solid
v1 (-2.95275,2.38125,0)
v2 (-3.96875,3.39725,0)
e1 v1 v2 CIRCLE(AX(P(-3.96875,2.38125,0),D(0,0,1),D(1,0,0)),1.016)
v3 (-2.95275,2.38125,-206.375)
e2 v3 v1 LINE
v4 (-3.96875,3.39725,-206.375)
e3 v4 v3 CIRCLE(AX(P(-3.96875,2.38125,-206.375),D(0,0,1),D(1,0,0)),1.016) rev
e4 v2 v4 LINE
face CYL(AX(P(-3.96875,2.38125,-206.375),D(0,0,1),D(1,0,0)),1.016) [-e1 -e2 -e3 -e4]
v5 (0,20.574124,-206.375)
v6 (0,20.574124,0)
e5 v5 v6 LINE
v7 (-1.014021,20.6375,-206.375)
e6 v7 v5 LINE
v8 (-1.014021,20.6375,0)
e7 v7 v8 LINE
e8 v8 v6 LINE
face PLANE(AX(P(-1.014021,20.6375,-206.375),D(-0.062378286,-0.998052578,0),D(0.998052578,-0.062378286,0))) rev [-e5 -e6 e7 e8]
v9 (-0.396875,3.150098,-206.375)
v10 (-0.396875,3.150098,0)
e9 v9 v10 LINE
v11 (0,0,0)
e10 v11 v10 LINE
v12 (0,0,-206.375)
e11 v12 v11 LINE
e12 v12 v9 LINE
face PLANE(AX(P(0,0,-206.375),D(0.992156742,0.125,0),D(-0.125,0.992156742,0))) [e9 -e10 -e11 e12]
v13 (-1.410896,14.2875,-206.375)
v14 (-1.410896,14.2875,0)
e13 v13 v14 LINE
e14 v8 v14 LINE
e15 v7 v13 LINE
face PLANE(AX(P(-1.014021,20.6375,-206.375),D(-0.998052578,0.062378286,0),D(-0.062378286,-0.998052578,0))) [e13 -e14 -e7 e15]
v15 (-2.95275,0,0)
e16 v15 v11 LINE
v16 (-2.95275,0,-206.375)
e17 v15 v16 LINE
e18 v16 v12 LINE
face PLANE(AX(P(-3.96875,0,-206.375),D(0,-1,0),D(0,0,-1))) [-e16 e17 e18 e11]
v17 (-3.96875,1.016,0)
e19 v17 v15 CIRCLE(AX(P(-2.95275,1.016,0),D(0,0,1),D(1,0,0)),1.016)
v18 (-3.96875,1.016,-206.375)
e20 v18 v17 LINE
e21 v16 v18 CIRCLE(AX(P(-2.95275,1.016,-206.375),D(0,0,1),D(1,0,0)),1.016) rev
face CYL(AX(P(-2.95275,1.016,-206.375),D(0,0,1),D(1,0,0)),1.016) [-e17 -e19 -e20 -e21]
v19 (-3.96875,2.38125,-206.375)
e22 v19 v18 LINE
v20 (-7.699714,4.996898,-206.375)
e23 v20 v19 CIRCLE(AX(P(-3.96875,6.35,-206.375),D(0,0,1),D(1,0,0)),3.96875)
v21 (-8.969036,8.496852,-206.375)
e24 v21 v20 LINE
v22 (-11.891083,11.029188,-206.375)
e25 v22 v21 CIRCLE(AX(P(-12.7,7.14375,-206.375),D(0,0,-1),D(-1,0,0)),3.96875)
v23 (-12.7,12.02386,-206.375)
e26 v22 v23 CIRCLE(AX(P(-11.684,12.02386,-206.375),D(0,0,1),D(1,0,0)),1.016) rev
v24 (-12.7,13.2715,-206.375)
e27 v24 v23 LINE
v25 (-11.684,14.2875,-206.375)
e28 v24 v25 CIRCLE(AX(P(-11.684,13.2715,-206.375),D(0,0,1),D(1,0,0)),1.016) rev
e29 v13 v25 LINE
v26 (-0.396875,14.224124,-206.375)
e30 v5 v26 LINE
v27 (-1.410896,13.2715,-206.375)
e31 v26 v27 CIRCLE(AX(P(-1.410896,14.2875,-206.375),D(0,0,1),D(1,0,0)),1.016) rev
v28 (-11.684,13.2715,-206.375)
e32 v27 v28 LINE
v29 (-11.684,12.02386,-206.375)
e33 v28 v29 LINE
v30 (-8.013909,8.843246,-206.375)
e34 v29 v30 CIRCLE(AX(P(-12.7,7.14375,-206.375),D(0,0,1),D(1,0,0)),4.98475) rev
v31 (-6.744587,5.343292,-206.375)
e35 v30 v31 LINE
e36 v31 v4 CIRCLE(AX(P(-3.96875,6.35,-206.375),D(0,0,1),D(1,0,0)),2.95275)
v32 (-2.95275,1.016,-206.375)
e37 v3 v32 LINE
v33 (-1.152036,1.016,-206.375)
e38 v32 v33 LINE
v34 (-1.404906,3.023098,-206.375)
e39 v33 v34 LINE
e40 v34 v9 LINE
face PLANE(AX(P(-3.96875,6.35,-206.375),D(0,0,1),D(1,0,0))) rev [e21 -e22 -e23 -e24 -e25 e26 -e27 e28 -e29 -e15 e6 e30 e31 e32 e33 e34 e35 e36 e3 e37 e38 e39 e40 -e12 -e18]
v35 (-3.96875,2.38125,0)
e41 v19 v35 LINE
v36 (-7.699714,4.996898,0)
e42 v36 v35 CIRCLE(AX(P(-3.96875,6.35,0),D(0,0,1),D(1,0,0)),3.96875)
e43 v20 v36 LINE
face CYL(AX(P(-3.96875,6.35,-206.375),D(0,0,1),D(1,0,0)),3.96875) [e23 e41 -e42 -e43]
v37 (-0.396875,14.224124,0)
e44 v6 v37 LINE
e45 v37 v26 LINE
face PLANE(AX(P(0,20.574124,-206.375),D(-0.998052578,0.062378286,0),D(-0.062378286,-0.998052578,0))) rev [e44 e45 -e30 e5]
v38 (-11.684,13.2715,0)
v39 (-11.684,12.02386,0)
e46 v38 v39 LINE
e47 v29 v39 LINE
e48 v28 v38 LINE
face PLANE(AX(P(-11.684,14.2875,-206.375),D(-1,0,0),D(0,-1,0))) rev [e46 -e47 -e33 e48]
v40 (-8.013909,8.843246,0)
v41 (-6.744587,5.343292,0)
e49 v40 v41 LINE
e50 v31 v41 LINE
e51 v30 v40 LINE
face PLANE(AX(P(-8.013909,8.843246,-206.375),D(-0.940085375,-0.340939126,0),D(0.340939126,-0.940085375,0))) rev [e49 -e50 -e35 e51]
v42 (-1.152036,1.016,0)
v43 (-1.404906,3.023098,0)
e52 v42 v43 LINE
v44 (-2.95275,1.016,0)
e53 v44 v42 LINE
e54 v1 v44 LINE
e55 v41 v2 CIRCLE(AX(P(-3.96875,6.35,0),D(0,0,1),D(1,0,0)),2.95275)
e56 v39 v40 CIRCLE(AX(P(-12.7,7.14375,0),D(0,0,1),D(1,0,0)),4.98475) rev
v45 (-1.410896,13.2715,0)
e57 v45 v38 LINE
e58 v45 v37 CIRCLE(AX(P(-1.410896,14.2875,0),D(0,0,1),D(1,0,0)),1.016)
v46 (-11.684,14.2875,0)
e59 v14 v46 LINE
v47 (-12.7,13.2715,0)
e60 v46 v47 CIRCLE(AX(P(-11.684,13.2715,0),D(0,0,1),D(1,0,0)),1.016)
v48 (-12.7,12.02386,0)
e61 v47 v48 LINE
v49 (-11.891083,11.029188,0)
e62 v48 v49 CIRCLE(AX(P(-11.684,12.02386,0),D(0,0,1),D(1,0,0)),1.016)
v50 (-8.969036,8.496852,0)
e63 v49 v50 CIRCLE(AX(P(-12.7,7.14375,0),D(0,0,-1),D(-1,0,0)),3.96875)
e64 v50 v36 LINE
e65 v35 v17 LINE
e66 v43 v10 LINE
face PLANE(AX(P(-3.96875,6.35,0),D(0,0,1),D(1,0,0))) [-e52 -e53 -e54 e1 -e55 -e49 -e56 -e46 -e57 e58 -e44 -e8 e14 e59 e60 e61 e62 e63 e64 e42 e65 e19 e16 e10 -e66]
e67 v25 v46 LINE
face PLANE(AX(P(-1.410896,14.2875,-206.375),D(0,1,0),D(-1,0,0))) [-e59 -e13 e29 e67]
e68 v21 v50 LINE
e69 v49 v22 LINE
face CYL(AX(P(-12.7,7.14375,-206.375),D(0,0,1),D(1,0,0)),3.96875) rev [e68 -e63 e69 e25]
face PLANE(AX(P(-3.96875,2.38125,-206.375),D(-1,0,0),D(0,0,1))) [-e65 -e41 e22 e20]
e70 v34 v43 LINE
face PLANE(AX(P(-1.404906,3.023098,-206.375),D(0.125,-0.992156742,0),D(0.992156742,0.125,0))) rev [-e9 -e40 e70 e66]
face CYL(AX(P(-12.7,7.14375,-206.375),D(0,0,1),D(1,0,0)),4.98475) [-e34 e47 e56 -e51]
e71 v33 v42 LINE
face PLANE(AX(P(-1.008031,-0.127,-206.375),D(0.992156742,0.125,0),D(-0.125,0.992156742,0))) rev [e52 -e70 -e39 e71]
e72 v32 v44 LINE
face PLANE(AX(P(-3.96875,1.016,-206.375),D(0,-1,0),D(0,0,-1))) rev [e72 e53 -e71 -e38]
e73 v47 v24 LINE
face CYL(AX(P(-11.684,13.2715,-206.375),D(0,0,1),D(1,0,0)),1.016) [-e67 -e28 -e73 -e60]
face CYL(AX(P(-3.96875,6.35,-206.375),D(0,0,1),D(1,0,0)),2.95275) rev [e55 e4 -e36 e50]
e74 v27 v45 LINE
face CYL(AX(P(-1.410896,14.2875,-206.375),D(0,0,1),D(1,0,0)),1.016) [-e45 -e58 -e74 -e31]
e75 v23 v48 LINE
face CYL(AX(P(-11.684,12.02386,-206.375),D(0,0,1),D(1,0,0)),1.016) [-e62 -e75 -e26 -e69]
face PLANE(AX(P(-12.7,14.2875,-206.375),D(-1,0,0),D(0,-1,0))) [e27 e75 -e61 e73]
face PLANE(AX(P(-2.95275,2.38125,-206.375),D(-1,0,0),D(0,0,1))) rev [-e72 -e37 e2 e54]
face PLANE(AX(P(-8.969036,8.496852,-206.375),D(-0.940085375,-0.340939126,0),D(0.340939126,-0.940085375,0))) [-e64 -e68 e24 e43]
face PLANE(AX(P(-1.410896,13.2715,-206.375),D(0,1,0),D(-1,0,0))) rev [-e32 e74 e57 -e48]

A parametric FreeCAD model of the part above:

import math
import FreeCAD as App
import Part
import Sketcher
from FreeCAD import Vector
Q = App.Units.Quantity


def edges_at(feature, points):
    """Names of the edges that pass closest to the given points."""
    edges = feature.Shape.Edges
    near = lambda p: min(range(len(edges)), key=lambda i: edges[i].distToShape(Part.Vertex(*p))[0])
    return sorted({f"Edge{near(p) + 1}" for p in points})

doc = App.newDocument("Part")
body = doc.addObject("PartDesign::Body", "Body")

sketch1 = body.newObject("Sketcher::SketchObject", "Sketch")
sketch1.AttachmentSupport = (doc.getObject("XY_Plane"), [""])
sketch1.MapMode = "FlatFace"
sketch1.addGeometry([
    Part.LineSegment(Vector(-1, 20.6, 0), Vector(-1.4, 14.3, 0)),
    Part.LineSegment(Vector(-1.4, 14.3, 0), Vector(-12.7, 14.3, 0)),
    Part.LineSegment(Vector(-12.7, 14.3, 0), Vector(-12.7, 11.1, 0)),
    Part.ArcOfCircle(Part.Circle(Vector(-12.7, 7.1, 0), Vector(0, 0, 1), 4), math.radians(20), math.radians(90)),
    Part.LineSegment(Vector(-9, 8.5, 0), Vector(-7.7, 5, 0)),
    Part.ArcOfCircle(Part.Circle(Vector(-4, 6.3, 0), Vector(0, 0, 1), 4), math.radians(-160), math.radians(-90)),
    Part.LineSegment(Vector(-4, 2.4, 0), Vector(-4, 0, 0)),
    Part.LineSegment(Vector(-4, 0, 0), Vector(0, 0, 0)),
    Part.LineSegment(Vector(0, 0, 0), Vector(-0.4, 3.2, 0)),
    Part.LineSegment(Vector(-0.4, 3.2, 0), Vector(-1.4, 3, 0)),
    Part.LineSegment(Vector(-1.4, 3, 0), Vector(-1.2, 1, 0)),
    Part.LineSegment(Vector(-1.2, 1, 0), Vector(-3, 1, 0)),
    Part.LineSegment(Vector(-3, 1, 0), Vector(-3, 3.6, 0)),
    Part.ArcOfCircle(Part.Circle(Vector(-4, 6.3, 0), Vector(0, 0, 1), 3), math.radians(-160), math.radians(-70)),
    Part.LineSegment(Vector(-6.7, 5.3, 0), Vector(-8, 8.8, 0)),
    Part.ArcOfCircle(Part.Circle(Vector(-12.7, 7.1, 0), Vector(0, 0, 1), 5), math.radians(20), math.radians(78)),
    Part.LineSegment(Vector(-11.7, 12, 0), Vector(-11.7, 13.3, 0)),
    Part.LineSegment(Vector(-11.7, 13.3, 0), Vector(-0.5, 13.3, 0)),
    Part.LineSegment(Vector(-0.5, 13.3, 0), Vector(0, 20.6, 0)),
    Part.LineSegment(Vector(0, 20.6, 0), Vector(-1, 20.6, 0)),
], False)
sketch1.addConstraint([
    Sketcher.Constraint("Coincident", 0, 2, 1, 1),
    Sketcher.Constraint("Coincident", 1, 2, 2, 1),
    Sketcher.Constraint("Coincident", 2, 2, 3, 2),
    Sketcher.Constraint("Tangent", 3, 1, 4, 1),
    Sketcher.Constraint("Tangent", 4, 2, 5, 1),
    Sketcher.Constraint("Coincident", 5, 2, 6, 1),
    Sketcher.Constraint("Coincident", 6, 2, 7, 1),
    Sketcher.Constraint("Coincident", 7, 2, 8, 1),
    Sketcher.Constraint("Coincident", 8, 2, 9, 1),
    Sketcher.Constraint("Coincident", 9, 2, 10, 1),
    Sketcher.Constraint("Coincident", 10, 2, 11, 1),
    Sketcher.Constraint("Coincident", 11, 2, 12, 1),
    Sketcher.Constraint("Coincident", 12, 2, 13, 2),
    Sketcher.Constraint("Tangent", 13, 1, 14, 1),
    Sketcher.Constraint("Tangent", 14, 2, 15, 1),
    Sketcher.Constraint("Coincident", 15, 2, 16, 1),
    Sketcher.Constraint("Coincident", 16, 2, 17, 1),
    Sketcher.Constraint("Coincident", 17, 2, 18, 1),
    Sketcher.Constraint("Coincident", 18, 2, 19, 1),
    Sketcher.Constraint("Coincident", 19, 2, 0, 1),
    Sketcher.Constraint("Horizontal", 1),
    Sketcher.Constraint("Vertical", 2),
    Sketcher.Constraint("Vertical", 6),
    Sketcher.Constraint("Horizontal", 7),
    Sketcher.Constraint("Horizontal", 11),
    Sketcher.Constraint("Vertical", 12),
    Sketcher.Constraint("Vertical", 16),
    Sketcher.Constraint("Horizontal", 17),
    Sketcher.Constraint("Coincident", 7, 2, -1, 1),
    Sketcher.Constraint("Coincident", 13, 3, 5, 3),
    Sketcher.Constraint("Coincident", 15, 3, 3, 3),
    Sketcher.Constraint("Equal", 3, 5),
    Sketcher.Constraint("PointOnObject", 18, 2, -2),
    Sketcher.Constraint("Perpendicular", 8, 9),
    Sketcher.Constraint("Perpendicular", 9, 10),
    Sketcher.Constraint("Parallel", 4, 14),
    Sketcher.Constraint("Parallel", 0, 18),
    Sketcher.Constraint("Perpendicular", 18, 19),
    Sketcher.Constraint("Vertical", 15, 3, 1, 2),
    Sketcher.Constraint("Vertical", 13, 3, 5, 2),
    Sketcher.Constraint("Equal", 9, 19),
    Sketcher.Constraint("Radius", 3, Q("0.15625 in")),
    Sketcher.Constraint("DistanceX", 3, 3, -1, 1, Q("0.5 in")),
    Sketcher.Constraint("Distance", 9, Q("0.04 in")),
    Sketcher.Constraint("DistanceX", 7, 1, 7, 2, Q("0.15625 in")),
    Sketcher.Constraint("DistanceY", 2, 2, 2, 1, Q("0.125 in")),
    Sketcher.Constraint("DistanceY", 6, 2, 6, 1, Q("0.09375 in")),
    Sketcher.Constraint("DistanceY", -1, 1, 10, 2, Q("0.04 in")),
    Sketcher.Constraint("DistanceX", 15, 2, -1, 1, Q("0.46 in")),
    Sketcher.Constraint("DistanceX", 6, 2, 11, 2, Q("0.04 in")),
    Sketcher.Constraint("DistanceY", 16, 2, 1, 2, Q("0.04 in")),
    Sketcher.Constraint("DistanceY", 0, 2, 19, 2, Q("0.25 in")),
    Sketcher.Constraint("Distance", 8, Q("0.125 in")),
    Sketcher.Constraint("DistanceY", -1, 1, 3, 3, Q("0.28125 in")),
    Sketcher.Constraint("DistanceX", 8, 2, -1, 1, Q("0.015625 in")),
    Sketcher.Constraint("Radius", 13, 2.95275),
    Sketcher.Constraint("DistanceX", 0, 2, 19, 2, Q("0.015625 in")),
])
pad1 = body.newObject("PartDesign::Pad", "Pad")
pad1.Profile = sketch1
pad1.Length = Q("8.125 in")
pad1.Reversed = True
doc.recompute()

fillet = body.newObject("PartDesign::Fillet", "Fillet")
fillet.Base = (pad1, edges_at(pad1, [
    (-3.969, 0, -103.188),
    (-12.7, 11.113, -103.188),
    (-12.7, 14.287, -103.188),
    (-0.456, 13.271, -103.188),
    (-2.953, 3.578, -103.188),
]))
fillet.Radius = Q("0.04 in")

doc.recompute()
